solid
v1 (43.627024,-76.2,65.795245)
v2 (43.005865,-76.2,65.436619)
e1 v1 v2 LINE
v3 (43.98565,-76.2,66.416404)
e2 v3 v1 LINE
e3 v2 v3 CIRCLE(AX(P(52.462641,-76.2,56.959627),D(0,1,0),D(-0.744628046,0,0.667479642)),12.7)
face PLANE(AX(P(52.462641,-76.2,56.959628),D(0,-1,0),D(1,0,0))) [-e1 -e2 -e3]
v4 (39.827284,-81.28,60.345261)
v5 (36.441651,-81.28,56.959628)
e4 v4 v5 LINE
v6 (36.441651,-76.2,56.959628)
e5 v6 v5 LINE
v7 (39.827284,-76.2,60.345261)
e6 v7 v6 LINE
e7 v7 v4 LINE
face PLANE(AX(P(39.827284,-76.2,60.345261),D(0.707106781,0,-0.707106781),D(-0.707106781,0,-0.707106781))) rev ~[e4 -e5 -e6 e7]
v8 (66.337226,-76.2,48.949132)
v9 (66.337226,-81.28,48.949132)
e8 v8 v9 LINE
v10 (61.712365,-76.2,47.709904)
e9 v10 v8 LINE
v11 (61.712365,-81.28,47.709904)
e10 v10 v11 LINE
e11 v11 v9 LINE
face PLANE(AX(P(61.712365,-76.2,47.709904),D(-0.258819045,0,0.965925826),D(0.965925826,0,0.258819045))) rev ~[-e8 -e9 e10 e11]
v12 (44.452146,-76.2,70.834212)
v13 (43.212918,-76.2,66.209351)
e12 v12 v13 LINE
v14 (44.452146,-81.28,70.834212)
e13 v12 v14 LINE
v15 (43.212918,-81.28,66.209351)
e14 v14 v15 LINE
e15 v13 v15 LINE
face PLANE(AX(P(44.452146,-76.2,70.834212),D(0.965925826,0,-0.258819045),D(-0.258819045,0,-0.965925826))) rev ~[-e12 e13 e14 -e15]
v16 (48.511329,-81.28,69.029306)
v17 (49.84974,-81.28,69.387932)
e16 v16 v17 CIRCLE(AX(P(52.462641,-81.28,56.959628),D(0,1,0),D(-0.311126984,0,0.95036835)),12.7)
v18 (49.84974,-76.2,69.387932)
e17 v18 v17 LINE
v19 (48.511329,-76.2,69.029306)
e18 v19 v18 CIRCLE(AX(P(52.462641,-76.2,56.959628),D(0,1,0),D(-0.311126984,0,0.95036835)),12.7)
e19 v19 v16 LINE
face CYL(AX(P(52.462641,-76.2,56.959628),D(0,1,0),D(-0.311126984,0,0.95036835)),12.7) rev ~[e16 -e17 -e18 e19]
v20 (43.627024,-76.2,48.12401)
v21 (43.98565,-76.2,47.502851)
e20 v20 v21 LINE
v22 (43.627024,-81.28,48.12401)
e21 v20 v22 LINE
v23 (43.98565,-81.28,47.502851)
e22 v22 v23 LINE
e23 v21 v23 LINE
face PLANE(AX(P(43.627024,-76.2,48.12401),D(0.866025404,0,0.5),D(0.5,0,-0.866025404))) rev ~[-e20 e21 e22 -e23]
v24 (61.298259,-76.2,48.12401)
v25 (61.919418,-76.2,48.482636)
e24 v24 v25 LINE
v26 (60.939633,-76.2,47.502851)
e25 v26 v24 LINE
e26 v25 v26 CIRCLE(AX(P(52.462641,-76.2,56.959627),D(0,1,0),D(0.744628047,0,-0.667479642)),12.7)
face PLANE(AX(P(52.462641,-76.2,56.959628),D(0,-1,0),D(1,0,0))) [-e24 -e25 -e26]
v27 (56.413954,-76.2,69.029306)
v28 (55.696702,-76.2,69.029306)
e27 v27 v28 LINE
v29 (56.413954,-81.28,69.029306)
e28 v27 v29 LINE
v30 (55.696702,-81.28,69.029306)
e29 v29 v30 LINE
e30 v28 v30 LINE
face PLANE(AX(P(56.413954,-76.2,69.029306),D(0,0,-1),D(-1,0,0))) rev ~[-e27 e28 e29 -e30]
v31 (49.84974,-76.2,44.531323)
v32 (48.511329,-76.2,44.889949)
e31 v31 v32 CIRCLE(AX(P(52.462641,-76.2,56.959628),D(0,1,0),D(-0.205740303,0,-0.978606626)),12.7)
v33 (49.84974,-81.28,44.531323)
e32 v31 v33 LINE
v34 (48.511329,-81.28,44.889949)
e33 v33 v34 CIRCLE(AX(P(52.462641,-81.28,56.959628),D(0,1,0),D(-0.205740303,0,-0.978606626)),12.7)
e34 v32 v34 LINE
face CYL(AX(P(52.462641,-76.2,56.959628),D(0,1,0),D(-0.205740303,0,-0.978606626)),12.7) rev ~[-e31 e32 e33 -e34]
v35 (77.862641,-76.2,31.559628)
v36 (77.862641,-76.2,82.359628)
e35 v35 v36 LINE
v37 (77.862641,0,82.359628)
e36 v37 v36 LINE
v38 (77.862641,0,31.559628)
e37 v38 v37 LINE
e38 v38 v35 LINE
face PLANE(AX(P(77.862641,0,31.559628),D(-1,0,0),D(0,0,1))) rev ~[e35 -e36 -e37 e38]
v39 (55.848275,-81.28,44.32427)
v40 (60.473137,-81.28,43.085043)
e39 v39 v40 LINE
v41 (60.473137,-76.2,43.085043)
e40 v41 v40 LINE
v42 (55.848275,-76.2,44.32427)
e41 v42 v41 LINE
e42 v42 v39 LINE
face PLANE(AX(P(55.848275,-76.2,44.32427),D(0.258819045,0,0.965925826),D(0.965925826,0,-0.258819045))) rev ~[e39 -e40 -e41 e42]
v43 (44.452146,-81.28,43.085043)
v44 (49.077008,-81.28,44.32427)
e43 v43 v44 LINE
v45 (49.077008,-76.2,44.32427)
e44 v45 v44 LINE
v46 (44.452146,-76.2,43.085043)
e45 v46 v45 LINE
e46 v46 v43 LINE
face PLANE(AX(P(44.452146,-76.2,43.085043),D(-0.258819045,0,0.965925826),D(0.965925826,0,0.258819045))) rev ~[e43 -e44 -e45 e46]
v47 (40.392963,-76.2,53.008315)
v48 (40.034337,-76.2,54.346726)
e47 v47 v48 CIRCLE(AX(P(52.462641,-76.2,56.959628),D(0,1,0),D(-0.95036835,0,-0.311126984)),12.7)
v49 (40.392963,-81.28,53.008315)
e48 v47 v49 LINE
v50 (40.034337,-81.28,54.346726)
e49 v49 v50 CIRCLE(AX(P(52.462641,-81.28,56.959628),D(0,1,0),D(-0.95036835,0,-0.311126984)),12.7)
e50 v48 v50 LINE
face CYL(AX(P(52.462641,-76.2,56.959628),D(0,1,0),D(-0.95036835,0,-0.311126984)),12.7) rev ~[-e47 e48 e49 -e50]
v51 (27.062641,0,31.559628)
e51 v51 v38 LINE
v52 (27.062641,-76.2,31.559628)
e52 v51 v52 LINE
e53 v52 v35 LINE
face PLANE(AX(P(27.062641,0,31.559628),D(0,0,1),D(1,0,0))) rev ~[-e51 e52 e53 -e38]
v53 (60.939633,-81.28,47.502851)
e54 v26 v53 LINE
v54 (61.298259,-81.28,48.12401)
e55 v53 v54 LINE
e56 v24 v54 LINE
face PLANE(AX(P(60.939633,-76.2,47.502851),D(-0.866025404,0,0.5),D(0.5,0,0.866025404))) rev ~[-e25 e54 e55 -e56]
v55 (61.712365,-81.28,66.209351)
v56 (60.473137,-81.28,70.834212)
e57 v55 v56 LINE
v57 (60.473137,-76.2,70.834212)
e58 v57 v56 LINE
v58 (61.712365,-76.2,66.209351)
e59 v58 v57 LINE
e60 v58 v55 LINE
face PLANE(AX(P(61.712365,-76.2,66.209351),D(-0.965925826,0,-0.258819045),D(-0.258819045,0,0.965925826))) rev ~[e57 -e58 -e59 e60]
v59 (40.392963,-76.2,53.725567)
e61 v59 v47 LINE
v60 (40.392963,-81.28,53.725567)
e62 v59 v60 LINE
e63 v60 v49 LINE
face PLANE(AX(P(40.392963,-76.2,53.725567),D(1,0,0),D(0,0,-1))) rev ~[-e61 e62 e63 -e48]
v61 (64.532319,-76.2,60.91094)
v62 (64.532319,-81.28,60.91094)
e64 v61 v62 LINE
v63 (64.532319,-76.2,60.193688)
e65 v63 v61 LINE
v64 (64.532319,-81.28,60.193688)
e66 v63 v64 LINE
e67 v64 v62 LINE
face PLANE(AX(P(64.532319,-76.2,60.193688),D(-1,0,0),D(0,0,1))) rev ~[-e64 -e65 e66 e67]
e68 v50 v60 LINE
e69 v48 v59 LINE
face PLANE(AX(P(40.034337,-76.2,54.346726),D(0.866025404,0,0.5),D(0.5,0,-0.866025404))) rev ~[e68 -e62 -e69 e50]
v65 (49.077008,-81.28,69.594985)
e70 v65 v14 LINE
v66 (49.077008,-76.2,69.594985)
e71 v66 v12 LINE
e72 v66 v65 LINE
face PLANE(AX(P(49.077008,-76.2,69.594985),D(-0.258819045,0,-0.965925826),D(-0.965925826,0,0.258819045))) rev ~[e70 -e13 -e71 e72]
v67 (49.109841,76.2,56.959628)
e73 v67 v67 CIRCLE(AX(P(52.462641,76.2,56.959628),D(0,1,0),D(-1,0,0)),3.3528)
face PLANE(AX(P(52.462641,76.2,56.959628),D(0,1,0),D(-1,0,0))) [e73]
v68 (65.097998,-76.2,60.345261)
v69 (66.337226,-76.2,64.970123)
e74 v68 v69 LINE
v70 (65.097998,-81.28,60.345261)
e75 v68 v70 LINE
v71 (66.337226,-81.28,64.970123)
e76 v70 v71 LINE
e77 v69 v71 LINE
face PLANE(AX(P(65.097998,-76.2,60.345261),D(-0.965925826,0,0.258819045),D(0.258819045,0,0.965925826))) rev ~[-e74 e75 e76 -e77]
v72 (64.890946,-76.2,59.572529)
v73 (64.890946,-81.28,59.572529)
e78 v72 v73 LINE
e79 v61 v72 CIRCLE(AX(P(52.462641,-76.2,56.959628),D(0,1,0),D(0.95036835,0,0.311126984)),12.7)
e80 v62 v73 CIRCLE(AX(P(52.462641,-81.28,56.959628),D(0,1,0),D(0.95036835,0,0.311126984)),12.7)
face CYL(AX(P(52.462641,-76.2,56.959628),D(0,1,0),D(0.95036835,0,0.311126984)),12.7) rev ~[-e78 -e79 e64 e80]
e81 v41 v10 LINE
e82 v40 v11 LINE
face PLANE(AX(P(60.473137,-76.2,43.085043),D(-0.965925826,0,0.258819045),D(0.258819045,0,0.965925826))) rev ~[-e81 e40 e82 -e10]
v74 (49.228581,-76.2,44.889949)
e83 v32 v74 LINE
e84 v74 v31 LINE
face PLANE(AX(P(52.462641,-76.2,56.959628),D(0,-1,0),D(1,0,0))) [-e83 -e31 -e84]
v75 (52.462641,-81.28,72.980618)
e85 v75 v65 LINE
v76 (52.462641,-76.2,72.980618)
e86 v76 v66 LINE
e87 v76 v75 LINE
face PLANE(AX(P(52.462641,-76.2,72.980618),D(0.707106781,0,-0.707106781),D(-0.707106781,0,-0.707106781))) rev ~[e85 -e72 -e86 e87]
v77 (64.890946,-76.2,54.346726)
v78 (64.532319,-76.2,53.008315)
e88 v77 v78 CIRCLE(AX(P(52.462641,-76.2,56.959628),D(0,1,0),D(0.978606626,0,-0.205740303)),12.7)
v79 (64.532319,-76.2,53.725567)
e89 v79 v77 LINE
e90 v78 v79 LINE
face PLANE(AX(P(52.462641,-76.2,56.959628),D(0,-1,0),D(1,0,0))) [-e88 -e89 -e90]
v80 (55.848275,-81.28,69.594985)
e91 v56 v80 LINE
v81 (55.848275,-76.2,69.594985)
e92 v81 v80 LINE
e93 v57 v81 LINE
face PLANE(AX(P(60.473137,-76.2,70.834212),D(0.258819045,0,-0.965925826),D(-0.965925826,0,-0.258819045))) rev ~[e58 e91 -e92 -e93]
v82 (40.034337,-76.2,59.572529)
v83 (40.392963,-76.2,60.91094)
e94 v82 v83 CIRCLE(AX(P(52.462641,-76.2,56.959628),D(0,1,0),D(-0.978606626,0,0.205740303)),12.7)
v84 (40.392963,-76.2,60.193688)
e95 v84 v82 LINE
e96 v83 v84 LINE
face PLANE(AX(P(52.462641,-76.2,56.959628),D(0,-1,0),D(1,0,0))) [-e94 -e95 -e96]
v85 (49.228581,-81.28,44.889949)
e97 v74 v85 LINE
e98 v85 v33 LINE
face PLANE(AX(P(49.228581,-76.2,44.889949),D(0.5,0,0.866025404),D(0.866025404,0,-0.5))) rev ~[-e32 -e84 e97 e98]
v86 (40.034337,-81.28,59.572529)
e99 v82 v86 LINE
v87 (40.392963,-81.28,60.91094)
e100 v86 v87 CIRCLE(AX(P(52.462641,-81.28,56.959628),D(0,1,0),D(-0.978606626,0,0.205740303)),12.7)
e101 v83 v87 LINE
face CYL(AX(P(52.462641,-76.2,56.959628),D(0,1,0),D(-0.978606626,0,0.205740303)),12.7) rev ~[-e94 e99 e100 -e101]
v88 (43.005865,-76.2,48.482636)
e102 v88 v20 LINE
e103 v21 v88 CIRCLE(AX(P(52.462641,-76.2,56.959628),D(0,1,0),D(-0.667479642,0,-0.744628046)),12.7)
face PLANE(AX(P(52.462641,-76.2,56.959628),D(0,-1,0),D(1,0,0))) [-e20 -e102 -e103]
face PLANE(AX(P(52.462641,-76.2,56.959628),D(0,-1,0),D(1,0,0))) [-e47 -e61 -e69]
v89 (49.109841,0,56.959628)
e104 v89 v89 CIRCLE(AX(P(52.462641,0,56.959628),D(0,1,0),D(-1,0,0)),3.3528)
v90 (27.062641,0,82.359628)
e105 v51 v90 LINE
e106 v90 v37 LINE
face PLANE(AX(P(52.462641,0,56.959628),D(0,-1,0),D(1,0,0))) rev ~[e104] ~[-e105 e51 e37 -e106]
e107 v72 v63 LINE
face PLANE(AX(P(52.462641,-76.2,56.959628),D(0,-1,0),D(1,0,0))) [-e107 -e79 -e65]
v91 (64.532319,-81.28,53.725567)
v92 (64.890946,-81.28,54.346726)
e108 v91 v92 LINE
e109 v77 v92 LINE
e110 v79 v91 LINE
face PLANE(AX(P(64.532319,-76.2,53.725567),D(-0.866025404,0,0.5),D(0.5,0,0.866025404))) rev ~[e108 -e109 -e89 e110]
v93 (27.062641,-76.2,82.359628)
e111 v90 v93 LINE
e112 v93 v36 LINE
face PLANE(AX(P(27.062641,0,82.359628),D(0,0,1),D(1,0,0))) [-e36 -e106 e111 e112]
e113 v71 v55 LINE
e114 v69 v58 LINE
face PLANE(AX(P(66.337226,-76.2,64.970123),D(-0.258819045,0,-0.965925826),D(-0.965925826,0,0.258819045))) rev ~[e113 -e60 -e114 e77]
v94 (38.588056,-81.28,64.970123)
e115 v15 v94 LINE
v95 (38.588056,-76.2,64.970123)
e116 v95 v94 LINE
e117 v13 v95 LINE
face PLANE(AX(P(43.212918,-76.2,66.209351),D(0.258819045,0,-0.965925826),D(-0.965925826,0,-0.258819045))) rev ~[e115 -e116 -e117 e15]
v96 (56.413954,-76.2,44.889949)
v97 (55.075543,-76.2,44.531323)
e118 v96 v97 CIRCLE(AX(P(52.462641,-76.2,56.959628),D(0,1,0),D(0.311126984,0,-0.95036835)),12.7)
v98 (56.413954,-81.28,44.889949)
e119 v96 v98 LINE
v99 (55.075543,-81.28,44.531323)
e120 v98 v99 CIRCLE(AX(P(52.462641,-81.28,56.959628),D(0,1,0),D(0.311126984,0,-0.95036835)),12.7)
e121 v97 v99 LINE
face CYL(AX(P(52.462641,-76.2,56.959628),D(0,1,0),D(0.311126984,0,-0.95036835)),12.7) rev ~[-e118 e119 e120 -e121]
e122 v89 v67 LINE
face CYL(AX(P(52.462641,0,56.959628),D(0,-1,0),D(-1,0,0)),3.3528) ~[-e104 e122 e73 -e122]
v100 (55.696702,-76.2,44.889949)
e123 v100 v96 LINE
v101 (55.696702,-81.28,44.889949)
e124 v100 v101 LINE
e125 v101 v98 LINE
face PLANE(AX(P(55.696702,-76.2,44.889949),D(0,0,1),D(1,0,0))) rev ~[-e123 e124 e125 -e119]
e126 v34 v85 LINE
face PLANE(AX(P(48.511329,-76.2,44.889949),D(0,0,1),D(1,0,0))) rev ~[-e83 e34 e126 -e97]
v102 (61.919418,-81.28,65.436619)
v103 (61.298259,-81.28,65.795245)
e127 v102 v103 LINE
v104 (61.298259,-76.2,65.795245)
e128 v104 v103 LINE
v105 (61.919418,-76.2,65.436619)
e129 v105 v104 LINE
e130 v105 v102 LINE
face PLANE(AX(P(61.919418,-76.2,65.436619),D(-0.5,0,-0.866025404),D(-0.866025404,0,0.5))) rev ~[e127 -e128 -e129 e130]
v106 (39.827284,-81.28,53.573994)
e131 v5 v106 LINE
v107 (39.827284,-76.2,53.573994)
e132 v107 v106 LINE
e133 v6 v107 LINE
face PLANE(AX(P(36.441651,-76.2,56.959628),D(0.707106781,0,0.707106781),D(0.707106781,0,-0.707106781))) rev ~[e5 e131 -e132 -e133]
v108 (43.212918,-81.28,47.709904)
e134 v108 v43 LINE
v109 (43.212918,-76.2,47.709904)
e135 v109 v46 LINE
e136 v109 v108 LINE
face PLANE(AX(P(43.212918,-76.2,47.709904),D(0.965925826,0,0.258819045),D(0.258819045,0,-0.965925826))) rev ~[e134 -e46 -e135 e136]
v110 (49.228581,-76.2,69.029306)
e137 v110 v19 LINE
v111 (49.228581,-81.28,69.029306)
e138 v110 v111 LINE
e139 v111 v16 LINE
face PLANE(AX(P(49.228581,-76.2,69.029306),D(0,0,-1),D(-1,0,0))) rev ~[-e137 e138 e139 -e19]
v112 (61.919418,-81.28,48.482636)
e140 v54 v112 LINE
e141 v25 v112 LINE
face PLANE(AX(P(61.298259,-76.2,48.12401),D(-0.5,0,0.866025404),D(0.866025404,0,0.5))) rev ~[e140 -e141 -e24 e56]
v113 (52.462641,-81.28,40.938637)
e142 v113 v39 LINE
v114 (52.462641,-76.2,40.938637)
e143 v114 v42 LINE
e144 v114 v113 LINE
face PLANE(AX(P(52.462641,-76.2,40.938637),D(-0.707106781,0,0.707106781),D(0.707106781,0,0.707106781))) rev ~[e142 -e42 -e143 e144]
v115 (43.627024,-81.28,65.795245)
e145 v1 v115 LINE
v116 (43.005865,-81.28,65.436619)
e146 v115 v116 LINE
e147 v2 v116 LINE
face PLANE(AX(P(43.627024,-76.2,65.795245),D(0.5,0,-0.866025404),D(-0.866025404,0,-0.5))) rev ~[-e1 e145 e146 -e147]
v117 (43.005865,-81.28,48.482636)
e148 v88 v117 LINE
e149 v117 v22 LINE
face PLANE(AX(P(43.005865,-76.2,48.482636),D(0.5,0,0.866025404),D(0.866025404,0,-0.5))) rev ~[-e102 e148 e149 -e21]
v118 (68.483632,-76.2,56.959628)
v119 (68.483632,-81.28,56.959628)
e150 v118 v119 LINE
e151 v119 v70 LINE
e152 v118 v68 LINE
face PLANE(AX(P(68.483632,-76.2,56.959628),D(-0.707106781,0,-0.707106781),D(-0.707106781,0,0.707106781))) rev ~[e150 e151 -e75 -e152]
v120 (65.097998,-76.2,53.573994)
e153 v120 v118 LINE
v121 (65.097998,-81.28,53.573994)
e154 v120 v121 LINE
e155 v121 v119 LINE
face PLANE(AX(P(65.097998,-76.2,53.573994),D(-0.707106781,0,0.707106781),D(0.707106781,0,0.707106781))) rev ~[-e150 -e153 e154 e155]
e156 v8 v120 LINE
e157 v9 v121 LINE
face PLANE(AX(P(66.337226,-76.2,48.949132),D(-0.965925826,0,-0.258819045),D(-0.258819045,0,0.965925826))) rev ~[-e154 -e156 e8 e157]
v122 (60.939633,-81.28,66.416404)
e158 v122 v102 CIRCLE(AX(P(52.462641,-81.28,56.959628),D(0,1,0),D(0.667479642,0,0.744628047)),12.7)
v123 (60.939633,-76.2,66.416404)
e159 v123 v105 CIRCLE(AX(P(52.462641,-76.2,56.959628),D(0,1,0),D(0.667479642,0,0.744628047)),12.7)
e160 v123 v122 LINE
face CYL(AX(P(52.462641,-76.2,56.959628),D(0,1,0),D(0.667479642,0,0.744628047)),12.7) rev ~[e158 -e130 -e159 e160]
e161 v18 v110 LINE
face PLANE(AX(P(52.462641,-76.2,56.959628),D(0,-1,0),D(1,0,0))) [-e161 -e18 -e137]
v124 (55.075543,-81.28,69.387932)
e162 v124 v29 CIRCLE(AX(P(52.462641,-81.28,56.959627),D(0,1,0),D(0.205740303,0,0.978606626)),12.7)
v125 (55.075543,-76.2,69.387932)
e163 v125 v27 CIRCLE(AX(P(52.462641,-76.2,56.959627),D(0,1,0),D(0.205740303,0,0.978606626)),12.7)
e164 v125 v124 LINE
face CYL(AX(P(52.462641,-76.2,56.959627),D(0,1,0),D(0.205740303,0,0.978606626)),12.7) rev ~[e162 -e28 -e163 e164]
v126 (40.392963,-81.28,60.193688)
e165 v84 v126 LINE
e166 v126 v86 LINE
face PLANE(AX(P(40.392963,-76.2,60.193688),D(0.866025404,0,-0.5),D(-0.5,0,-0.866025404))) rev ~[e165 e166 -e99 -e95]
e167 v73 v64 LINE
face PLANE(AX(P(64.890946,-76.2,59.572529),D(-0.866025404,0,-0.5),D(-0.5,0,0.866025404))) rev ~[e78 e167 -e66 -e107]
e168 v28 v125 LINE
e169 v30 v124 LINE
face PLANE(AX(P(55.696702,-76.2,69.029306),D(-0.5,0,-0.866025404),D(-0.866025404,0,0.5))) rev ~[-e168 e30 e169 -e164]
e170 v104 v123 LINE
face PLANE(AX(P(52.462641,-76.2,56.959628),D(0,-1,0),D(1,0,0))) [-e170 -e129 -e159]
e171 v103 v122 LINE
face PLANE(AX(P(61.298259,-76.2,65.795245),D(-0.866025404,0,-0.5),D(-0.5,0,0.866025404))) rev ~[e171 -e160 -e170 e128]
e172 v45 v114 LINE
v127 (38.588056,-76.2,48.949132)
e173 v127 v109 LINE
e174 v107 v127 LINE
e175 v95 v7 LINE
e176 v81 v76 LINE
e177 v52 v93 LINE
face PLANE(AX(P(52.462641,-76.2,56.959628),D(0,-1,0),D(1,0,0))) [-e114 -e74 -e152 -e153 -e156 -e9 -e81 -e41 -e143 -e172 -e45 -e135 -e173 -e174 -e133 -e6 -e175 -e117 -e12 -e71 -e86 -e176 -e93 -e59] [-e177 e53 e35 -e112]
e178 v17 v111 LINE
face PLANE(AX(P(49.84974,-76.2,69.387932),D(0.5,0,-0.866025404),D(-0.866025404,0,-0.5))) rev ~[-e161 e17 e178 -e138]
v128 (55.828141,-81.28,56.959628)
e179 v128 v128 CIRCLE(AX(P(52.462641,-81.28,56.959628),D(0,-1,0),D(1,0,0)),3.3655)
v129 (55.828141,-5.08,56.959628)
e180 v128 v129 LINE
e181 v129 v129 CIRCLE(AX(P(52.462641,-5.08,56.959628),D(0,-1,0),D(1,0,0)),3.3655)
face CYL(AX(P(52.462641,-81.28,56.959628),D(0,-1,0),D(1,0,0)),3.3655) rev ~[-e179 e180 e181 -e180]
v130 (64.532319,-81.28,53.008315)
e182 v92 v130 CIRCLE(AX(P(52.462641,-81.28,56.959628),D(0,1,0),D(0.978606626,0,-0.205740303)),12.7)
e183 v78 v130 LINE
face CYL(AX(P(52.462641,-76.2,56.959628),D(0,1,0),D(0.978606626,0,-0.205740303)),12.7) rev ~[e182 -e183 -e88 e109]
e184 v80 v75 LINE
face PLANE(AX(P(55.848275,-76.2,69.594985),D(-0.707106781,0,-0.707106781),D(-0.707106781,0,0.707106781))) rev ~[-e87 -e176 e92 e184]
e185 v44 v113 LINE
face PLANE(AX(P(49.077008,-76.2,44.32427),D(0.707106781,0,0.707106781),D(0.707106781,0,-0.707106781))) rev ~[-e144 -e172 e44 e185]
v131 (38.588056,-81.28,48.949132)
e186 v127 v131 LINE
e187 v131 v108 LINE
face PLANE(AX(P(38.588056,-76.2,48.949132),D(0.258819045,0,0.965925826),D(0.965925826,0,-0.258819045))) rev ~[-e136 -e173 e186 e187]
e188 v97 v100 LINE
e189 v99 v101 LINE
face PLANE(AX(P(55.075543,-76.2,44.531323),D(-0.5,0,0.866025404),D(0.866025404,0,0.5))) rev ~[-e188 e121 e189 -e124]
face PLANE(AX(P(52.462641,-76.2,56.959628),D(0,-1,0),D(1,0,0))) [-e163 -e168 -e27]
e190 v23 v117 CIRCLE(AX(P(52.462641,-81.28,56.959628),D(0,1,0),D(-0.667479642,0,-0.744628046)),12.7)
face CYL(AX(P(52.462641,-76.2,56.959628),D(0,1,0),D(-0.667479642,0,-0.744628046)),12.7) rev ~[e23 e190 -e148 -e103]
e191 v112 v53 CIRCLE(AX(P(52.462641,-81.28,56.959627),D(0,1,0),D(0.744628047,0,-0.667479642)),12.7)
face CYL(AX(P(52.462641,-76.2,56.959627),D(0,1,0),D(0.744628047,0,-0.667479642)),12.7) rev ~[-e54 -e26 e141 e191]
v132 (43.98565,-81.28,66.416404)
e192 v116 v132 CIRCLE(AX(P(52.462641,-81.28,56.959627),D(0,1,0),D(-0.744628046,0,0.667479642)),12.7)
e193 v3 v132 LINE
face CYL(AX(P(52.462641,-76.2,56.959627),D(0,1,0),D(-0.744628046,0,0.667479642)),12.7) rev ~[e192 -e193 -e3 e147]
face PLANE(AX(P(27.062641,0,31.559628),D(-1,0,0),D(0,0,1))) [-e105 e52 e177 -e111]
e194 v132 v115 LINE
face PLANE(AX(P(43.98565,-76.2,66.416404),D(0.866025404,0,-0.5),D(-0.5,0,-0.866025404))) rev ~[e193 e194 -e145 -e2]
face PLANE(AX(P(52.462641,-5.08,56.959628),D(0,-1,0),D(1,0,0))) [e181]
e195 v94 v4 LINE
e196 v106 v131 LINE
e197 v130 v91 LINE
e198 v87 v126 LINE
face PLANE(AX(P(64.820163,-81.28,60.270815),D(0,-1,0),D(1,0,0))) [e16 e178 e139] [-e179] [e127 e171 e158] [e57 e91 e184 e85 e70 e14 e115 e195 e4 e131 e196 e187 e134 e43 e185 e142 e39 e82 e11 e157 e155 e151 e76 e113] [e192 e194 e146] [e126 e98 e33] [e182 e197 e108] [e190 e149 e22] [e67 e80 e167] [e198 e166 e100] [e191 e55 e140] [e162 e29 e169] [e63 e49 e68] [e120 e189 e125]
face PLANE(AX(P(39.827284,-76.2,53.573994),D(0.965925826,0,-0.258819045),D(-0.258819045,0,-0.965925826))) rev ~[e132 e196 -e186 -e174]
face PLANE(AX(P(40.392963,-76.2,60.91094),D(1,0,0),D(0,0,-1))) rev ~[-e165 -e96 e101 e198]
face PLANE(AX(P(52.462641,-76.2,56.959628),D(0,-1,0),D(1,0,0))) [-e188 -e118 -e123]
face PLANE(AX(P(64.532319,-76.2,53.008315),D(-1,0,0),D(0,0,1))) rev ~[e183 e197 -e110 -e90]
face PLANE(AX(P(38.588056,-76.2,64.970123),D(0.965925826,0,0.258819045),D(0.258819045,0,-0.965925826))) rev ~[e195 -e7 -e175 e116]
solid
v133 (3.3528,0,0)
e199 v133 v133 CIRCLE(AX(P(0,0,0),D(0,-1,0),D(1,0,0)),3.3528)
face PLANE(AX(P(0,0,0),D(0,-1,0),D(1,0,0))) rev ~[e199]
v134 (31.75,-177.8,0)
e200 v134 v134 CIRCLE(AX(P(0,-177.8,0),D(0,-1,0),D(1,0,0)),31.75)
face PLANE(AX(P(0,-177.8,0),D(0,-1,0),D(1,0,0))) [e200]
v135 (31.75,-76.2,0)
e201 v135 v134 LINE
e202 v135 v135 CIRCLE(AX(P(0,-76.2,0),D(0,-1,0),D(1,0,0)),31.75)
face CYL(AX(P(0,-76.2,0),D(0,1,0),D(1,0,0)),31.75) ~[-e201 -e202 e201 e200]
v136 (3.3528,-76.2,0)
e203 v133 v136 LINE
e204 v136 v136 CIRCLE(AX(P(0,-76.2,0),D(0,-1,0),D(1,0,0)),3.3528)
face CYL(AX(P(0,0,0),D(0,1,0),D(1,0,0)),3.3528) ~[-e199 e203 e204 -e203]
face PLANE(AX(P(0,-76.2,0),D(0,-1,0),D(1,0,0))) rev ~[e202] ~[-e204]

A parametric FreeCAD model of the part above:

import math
import FreeCAD as App
import Part
import Sketcher
Q = App.Units.Quantity

doc = App.newDocument("Part")
body = doc.addObject("PartDesign::Body", "Body")

# Sketch on XZ plane
sketch1 = doc.addObject("Sketcher::SketchObject", "Sketch")
body.addObject(sketch1)
sketch1.AttachmentSupport = (doc.XZ_Plane, [""])
sketch1.MapMode = "FlatFace"
sketch1.addGeometry(Part.Circle(App.Vector(0, 0, 0), App.Vector(0, 0, 1), 3.4), False)
sketch1.addConstraint([
    Sketcher.Constraint("Coincident", 0, 3, -1, 1),
    Sketcher.Constraint("Diameter", 0, Q("0.264 in")),
])
pad1 = doc.addObject("PartDesign::Pad", "Pad")
body.addObject(pad1)
pad1.Profile = sketch1
pad1.Length = Q("3 in")

# Sketch on XZ plane
sketch2 = doc.addObject("Sketcher::SketchObject", "Sketch001")
body.addObject(sketch2)
sketch2.AttachmentSupport = (doc.XZ_Plane, [""])
sketch2.MapMode = "FlatFace"
sketch2.AttachmentOffset = App.Placement(App.Vector(0, 0, 3 * 25.4), App.Rotation())
sketch2.addGeometry(Part.Circle(App.Vector(0, 0, 0), App.Vector(0, 0, 1), 32), False)
sketch2.addConstraint([
    Sketcher.Constraint("Coincident", 0, 3, -1, 1),
    Sketcher.Constraint("Diameter", 0, Q("2.5 in")),
])
pad2 = doc.addObject("PartDesign::Pad", "Pad001")
body.addObject(pad2)
pad2.Profile = sketch2
pad2.Length = Q("4 in")
body2 = doc.addObject("PartDesign::Body", "Body001")

# Sketch on XZ plane
sketch3 = doc.addObject("Sketcher::SketchObject", "Sketch002")
body2.addObject(sketch3)
sketch3.AttachmentSupport = (doc.getObject("XZ_Plane001"), [""])
sketch3.MapMode = "FlatFace"
sketch3.addGeometry([
    Part.LineSegment(App.Vector(27, 82, 0), App.Vector(27, 32, 0)),
    Part.LineSegment(App.Vector(27, 32, 0), App.Vector(78, 32, 0)),
    Part.LineSegment(App.Vector(78, 32, 0), App.Vector(78, 82, 0)),
    Part.LineSegment(App.Vector(78, 82, 0), App.Vector(27, 82, 0)),
], False)
sketch3.addConstraint([
    Sketcher.Constraint("Coincident", 0, 2, 1, 1),
    Sketcher.Constraint("Coincident", 1, 2, 2, 1),
    Sketcher.Constraint("Coincident", 2, 2, 3, 1),
    Sketcher.Constraint("Coincident", 3, 2, 0, 1),
    Sketcher.Constraint("Vertical", 0),
    Sketcher.Constraint("Horizontal", 1),
    Sketcher.Constraint("Vertical", 2),
    Sketcher.Constraint("Horizontal", 3),
    Sketcher.Constraint("Equal", 3, 0),
    Sketcher.Constraint("DistanceX", 1, 1, 1, 2, Q("2 in")),
    Sketcher.Constraint("DistanceX", -1, 1, 0, 2, Q("27.062641 mm")),
    Sketcher.Constraint("DistanceY", -1, 1, 0, 2, Q("31.559628 mm")),
])
pad3 = doc.addObject("PartDesign::Pad", "Pad002")
body2.addObject(pad3)
pad3.Profile = sketch3
pad3.Length = Q("3 in")

# Sketch on XZ plane
sketch4 = doc.addObject("Sketcher::SketchObject", "Sketch003")
body2.addObject(sketch4)
sketch4.AttachmentSupport = (doc.getObject("XZ_Plane001"), [""])
sketch4.MapMode = "FlatFace"
sketch4.addGeometry(Part.Circle(App.Vector(52.5, 57, 0), App.Vector(0, 0, 1), 3.4), False)
sketch4.addConstraint([
    Sketcher.Constraint("Diameter", 0, Q("0.264 in")),
    Sketcher.Constraint("DistanceX", -1, 1, 0, 3, Q("52.462641 mm")),
    Sketcher.Constraint("DistanceY", -1, 1, 0, 3, Q("56.959628 mm")),
])
pad4 = doc.addObject("PartDesign::Pad", "Pad003")
body2.addObject(pad4)
pad4.Profile = sketch4
pad4.Length = Q("3 in")
pad4.Reversed = True

# Sketch on XZ plane
sketch5 = doc.addObject("Sketcher::SketchObject", "Sketch004")
body2.addObject(sketch5)
sketch5.AttachmentSupport = (doc.getObject("XZ_Plane001"), [""])
sketch5.MapMode = "FlatFace"
sketch5.AttachmentOffset = App.Placement(App.Vector(0, 0, 3 * 25.4), App.Rotation())
sketch5.addGeometry([
    Part.LineSegment(App.Vector(43.2, 66.2, 0), App.Vector(38.6, 65, 0)),  # 0
    Part.LineSegment(App.Vector(38.6, 65, 0), App.Vector(39.8, 60.3, 0)),  # 1
    Part.LineSegment(App.Vector(39.8, 60.3, 0), App.Vector(36.4, 57, 0)),  # 2
    Part.LineSegment(App.Vector(36.4, 57, 0), App.Vector(39.8, 53.6, 0)),  # 3
    Part.LineSegment(App.Vector(39.8, 53.6, 0), App.Vector(38.6, 48.9, 0)),  # 4
    Part.LineSegment(App.Vector(38.6, 48.9, 0), App.Vector(43.2, 47.7, 0)),  # 5
    Part.LineSegment(App.Vector(43.2, 47.7, 0), App.Vector(44.5, 43.1, 0)),  # 6
    Part.LineSegment(App.Vector(44.5, 43.1, 0), App.Vector(49.1, 44.3, 0)),  # 7
    Part.LineSegment(App.Vector(49.1, 44.3, 0), App.Vector(52.5, 40.9, 0)),  # 8
    Part.LineSegment(App.Vector(52.5, 40.9, 0), App.Vector(55.8, 44.3, 0)),  # 9
    Part.LineSegment(App.Vector(55.8, 44.3, 0), App.Vector(60.5, 43.1, 0)),  # 10
    Part.LineSegment(App.Vector(60.5, 43.1, 0), App.Vector(61.7, 47.7, 0)),  # 11
    Part.LineSegment(App.Vector(61.7, 47.7, 0), App.Vector(66.3, 48.9, 0)),  # 12
    Part.LineSegment(App.Vector(66.3, 48.9, 0), App.Vector(65.1, 53.6, 0)),  # 13
    Part.LineSegment(App.Vector(65.1, 53.6, 0), App.Vector(68.5, 57, 0)),  # 14
    Part.LineSegment(App.Vector(68.5, 57, 0), App.Vector(65.1, 60.3, 0)),  # 15
    Part.LineSegment(App.Vector(65.1, 60.3, 0), App.Vector(66.3, 65, 0)),  # 16
    Part.LineSegment(App.Vector(66.3, 65, 0), App.Vector(61.7, 66.2, 0)),  # 17
    Part.LineSegment(App.Vector(61.7, 66.2, 0), App.Vector(60.5, 70.8, 0)),  # 18
    Part.LineSegment(App.Vector(60.5, 70.8, 0), App.Vector(55.8, 69.6, 0)),  # 19
    Part.LineSegment(App.Vector(55.8, 69.6, 0), App.Vector(52.5, 73, 0)),  # 20
    Part.LineSegment(App.Vector(52.5, 73, 0), App.Vector(49.1, 69.6, 0)),  # 21
    Part.LineSegment(App.Vector(49.1, 69.6, 0), App.Vector(44.5, 70.8, 0)),  # 22
    Part.LineSegment(App.Vector(44.5, 70.8, 0), App.Vector(43.2, 66.2, 0)),  # 23
    Part.ArcOfCircle(Part.Circle(App.Vector(52.5, 57, 0), App.Vector(0, 0, 1), 12.7), math.radians(11.87), math.radians(18.13)),  # 24
    Part.LineSegment(App.Vector(64.9, 59.6, 0), App.Vector(64.5, 60.2, 0)),  # 25
    Part.LineSegment(App.Vector(64.5, 60.2, 0), App.Vector(64.5, 60.9, 0)),  # 26
    Part.ArcOfCircle(Part.Circle(App.Vector(52.5, 57, 0), App.Vector(0, 0, 1), 12.7), math.radians(-18.13), math.radians(-11.87)),  # 27
    Part.LineSegment(App.Vector(64.5, 53, 0), App.Vector(64.5, 53.7, 0)),  # 28
    Part.LineSegment(App.Vector(64.5, 53.7, 0), App.Vector(64.9, 54.3, 0)),  # 29
    Part.ArcOfCircle(Part.Circle(App.Vector(52.5, 57, 0), App.Vector(0, 0, 1), 12.7), math.radians(-48.13), math.radians(-41.87)),  # 30
    Part.LineSegment(App.Vector(60.9, 47.5, 0), App.Vector(61.3, 48.1, 0)),  # 31
    Part.LineSegment(App.Vector(61.3, 48.1, 0), App.Vector(61.9, 48.5, 0)),  # 32
    Part.ArcOfCircle(Part.Circle(App.Vector(52.5, 57, 0), App.Vector(0, 0, 1), 12.7), math.radians(-78.13), math.radians(-71.87)),  # 33
    Part.LineSegment(App.Vector(55.1, 44.5, 0), App.Vector(55.7, 44.9, 0)),  # 34
    Part.LineSegment(App.Vector(55.7, 44.9, 0), App.Vector(56.4, 44.9, 0)),  # 35
    Part.ArcOfCircle(Part.Circle(App.Vector(52.5, 57, 0), App.Vector(0, 0, 1), 12.7), math.radians(-108.13), math.radians(-101.87)),  # 36
    Part.LineSegment(App.Vector(48.5, 44.9, 0), App.Vector(49.2, 44.9, 0)),  # 37
    Part.LineSegment(App.Vector(49.2, 44.9, 0), App.Vector(49.8, 44.5, 0)),  # 38
    Part.ArcOfCircle(Part.Circle(App.Vector(52.5, 57, 0), App.Vector(0, 0, 1), 12.7), math.radians(-138.13), math.radians(-131.87)),  # 39
    Part.LineSegment(App.Vector(43, 48.5, 0), App.Vector(43.6, 48.1, 0)),  # 40
    Part.LineSegment(App.Vector(43.6, 48.1, 0), App.Vector(44, 47.5, 0)),  # 41
    Part.ArcOfCircle(Part.Circle(App.Vector(52.5, 57, 0), App.Vector(0, 0, 1), 12.7), math.radians(-168.13), math.radians(-161.87)),  # 42
    Part.LineSegment(App.Vector(40, 54.3, 0), App.Vector(40.4, 53.7, 0)),  # 43
    Part.LineSegment(App.Vector(40.4, 53.7, 0), App.Vector(40.4, 53, 0)),  # 44
    Part.ArcOfCircle(Part.Circle(App.Vector(52.5, 57, 0), App.Vector(0, 0, 1), 12.7), math.radians(161.87), math.radians(168.13)),  # 45
    Part.LineSegment(App.Vector(40.4, 60.9, 0), App.Vector(40.4, 60.2, 0)),  # 46
    Part.LineSegment(App.Vector(40.4, 60.2, 0), App.Vector(40, 59.6, 0)),  # 47
    Part.ArcOfCircle(Part.Circle(App.Vector(52.5, 57, 0), App.Vector(0, 0, 1), 12.7), math.radians(131.87), math.radians(138.13)),  # 48
    Part.LineSegment(App.Vector(44, 66.4, 0), App.Vector(43.6, 65.8, 0)),  # 49
    Part.LineSegment(App.Vector(43.6, 65.8, 0), App.Vector(43, 65.4, 0)),  # 50
    Part.LineSegment(App.Vector(61.3, 65.8, 0), App.Vector(60.9, 66.4, 0)),  # 51
    Part.ArcOfCircle(Part.Circle(App.Vector(52.5, 57, 0), App.Vector(0, 0, 1), 12.7), math.radians(41.87), math.radians(48.13)),  # 52
    Part.LineSegment(App.Vector(61.9, 65.4, 0), App.Vector(61.3, 65.8, 0)),  # 53
    Part.LineSegment(App.Vector(55.7, 69, 0), App.Vector(55.1, 69.4, 0)),  # 54
    Part.ArcOfCircle(Part.Circle(App.Vector(52.5, 57, 0), App.Vector(0, 0, 1), 12.7), math.radians(71.87), math.radians(78.13)),  # 55
    Part.LineSegment(App.Vector(56.4, 69, 0), App.Vector(55.7, 69, 0)),  # 56
    Part.LineSegment(App.Vector(49.2, 69, 0), App.Vector(48.5, 69, 0)),  # 57
    Part.ArcOfCircle(Part.Circle(App.Vector(52.5, 57, 0), App.Vector(0, 0, 1), 12.7), math.radians(101.87), math.radians(108.13)),  # 58
    Part.LineSegment(App.Vector(49.8, 69.4, 0), App.Vector(49.2, 69, 0)),  # 59
], False)
sketch5.addConstraint([
    Sketcher.Constraint("Coincident", 0, 2, 1, 1),
    Sketcher.Constraint("Coincident", 1, 2, 2, 1),
    Sketcher.Constraint("Coincident", 2, 2, 3, 1),
    Sketcher.Constraint("Coincident", 3, 2, 4, 1),
    Sketcher.Constraint("Coincident", 4, 2, 5, 1),
    Sketcher.Constraint("Coincident", 5, 2, 6, 1),
    Sketcher.Constraint("Coincident", 6, 2, 7, 1),
    Sketcher.Constraint("Coincident", 7, 2, 8, 1),
    Sketcher.Constraint("Coincident", 8, 2, 9, 1),
    Sketcher.Constraint("Coincident", 9, 2, 10, 1),
    Sketcher.Constraint("Coincident", 10, 2, 11, 1),
    Sketcher.Constraint("Coincident", 11, 2, 12, 1),
    Sketcher.Constraint("Coincident", 12, 2, 13, 1),
    Sketcher.Constraint("Coincident", 13, 2, 14, 1),
    Sketcher.Constraint("Coincident", 14, 2, 15, 1),
    Sketcher.Constraint("Coincident", 15, 2, 16, 1),
    Sketcher.Constraint("Coincident", 16, 2, 17, 1),
    Sketcher.Constraint("Coincident", 17, 2, 18, 1),
    Sketcher.Constraint("Coincident", 18, 2, 19, 1),
    Sketcher.Constraint("Coincident", 19, 2, 20, 1),
    Sketcher.Constraint("Coincident", 20, 2, 21, 1),
    Sketcher.Constraint("Coincident", 21, 2, 22, 1),
    Sketcher.Constraint("Coincident", 22, 2, 23, 1),
    Sketcher.Constraint("Coincident", 23, 2, 0, 1),
    Sketcher.Constraint("Coincident", 24, 1, 25, 1),
    Sketcher.Constraint("Coincident", 25, 2, 26, 1),
    Sketcher.Constraint("Coincident", 26, 2, 24, 2),
    Sketcher.Constraint("Coincident", 27, 1, 28, 1),
    Sketcher.Constraint("Coincident", 28, 2, 29, 1),
    Sketcher.Constraint("Coincident", 29, 2, 27, 2),
    Sketcher.Constraint("Coincident", 30, 1, 31, 1),
    Sketcher.Constraint("Coincident", 31, 2, 32, 1),
    Sketcher.Constraint("Coincident", 32, 2, 30, 2),
    Sketcher.Constraint("Coincident", 33, 1, 34, 1),
    Sketcher.Constraint("Coincident", 34, 2, 35, 1),
    Sketcher.Constraint("Coincident", 35, 2, 33, 2),
    Sketcher.Constraint("Coincident", 36, 1, 37, 1),
    Sketcher.Constraint("Coincident", 37, 2, 38, 1),
    Sketcher.Constraint("Coincident", 38, 2, 36, 2),
    Sketcher.Constraint("Coincident", 39, 1, 40, 1),
    Sketcher.Constraint("Coincident", 40, 2, 41, 1),
    Sketcher.Constraint("Coincident", 41, 2, 39, 2),
    Sketcher.Constraint("Coincident", 42, 1, 43, 1),
    Sketcher.Constraint("Coincident", 43, 2, 44, 1),
    Sketcher.Constraint("Coincident", 44, 2, 42, 2),
    Sketcher.Constraint("Coincident", 45, 1, 46, 1),
    Sketcher.Constraint("Coincident", 46, 2, 47, 1),
    Sketcher.Constraint("Coincident", 47, 2, 45, 2),
    Sketcher.Constraint("Coincident", 48, 1, 49, 1),
    Sketcher.Constraint("Coincident", 49, 2, 50, 1),
    Sketcher.Constraint("Coincident", 50, 2, 48, 2),
    Sketcher.Constraint("Coincident", 51, 2, 52, 2),
    Sketcher.Constraint("Coincident", 52, 1, 53, 1),
    Sketcher.Constraint("Coincident", 53, 2, 51, 1),
    Sketcher.Constraint("Coincident", 54, 2, 55, 2),
    Sketcher.Constraint("Coincident", 55, 1, 56, 1),
    Sketcher.Constraint("Coincident", 56, 2, 54, 1),
    Sketcher.Constraint("Coincident", 57, 2, 58, 2),
    Sketcher.Constraint("Coincident", 58, 1, 59, 1),
    Sketcher.Constraint("Coincident", 59, 2, 57, 1),
    Sketcher.Constraint("Vertical", 26),
    Sketcher.Constraint("Vertical", 28),
    Sketcher.Constraint("Horizontal", 35),
    Sketcher.Constraint("Horizontal", 37),
    Sketcher.Constraint("Vertical", 44),
    Sketcher.Constraint("Vertical", 46),
    Sketcher.Constraint("Horizontal", 56),
    Sketcher.Constraint("Horizontal", 57),
    Sketcher.Constraint("Coincident", 27, 3, 24, 3),
    Sketcher.Constraint("Coincident", 30, 3, 24, 3),
    Sketcher.Constraint("Coincident", 33, 3, 24, 3),
    Sketcher.Constraint("Coincident", 36, 3, 24, 3),
    Sketcher.Constraint("Coincident", 39, 3, 24, 3),
    Sketcher.Constraint("Coincident", 42, 3, 24, 3),
    Sketcher.Constraint("Coincident", 45, 3, 24, 3),
    Sketcher.Constraint("Coincident", 48, 3, 24, 3),
    Sketcher.Constraint("Coincident", 52, 3, 24, 3),
    Sketcher.Constraint("Coincident", 55, 3, 24, 3),
    Sketcher.Constraint("Coincident", 58, 3, 24, 3),
    Sketcher.Constraint("Equal", 24, 27),
    Sketcher.Constraint("Equal", 27, 30),
    Sketcher.Constraint("Equal", 30, 33),
    Sketcher.Constraint("Equal", 33, 36),
    Sketcher.Constraint("Equal", 36, 39),
    Sketcher.Constraint("Equal", 39, 42),
    Sketcher.Constraint("Equal", 42, 45),
    Sketcher.Constraint("Equal", 45, 48),
    Sketcher.Constraint("Equal", 48, 52),
    Sketcher.Constraint("Equal", 52, 55),
    Sketcher.Constraint("Equal", 55, 58),
    Sketcher.Constraint("Perpendicular", 0, 1),
    Sketcher.Constraint("Perpendicular", 2, 3),
    Sketcher.Constraint("Perpendicular", 4, 5),
    Sketcher.Constraint("Parallel", 1, 6),
    Sketcher.Constraint("Perpendicular", 6, 7),
    Sketcher.Constraint("Parallel", 3, 8),
    Sketcher.Constraint("Perpendicular", 8, 9),
    Sketcher.Constraint("Parallel", 5, 10),
    Sketcher.Constraint("Perpendicular", 10, 11),
    Sketcher.Constraint("Parallel", 7, 12),
    Sketcher.Constraint("Perpendicular", 12, 13),
    Sketcher.Constraint("Parallel", 9, 14),
    Sketcher.Constraint("Perpendicular", 14, 15),
    Sketcher.Constraint("Parallel", 11, 16),
    Sketcher.Constraint("Perpendicular", 16, 17),
    Sketcher.Constraint("Parallel", 13, 18),
    Sketcher.Constraint("Perpendicular", 18, 19),
    Sketcher.Constraint("Parallel", 15, 20),
    Sketcher.Constraint("Perpendicular", 20, 21),
    Sketcher.Constraint("Parallel", 17, 22),
    Sketcher.Constraint("Perpendicular", 22, 23),
    Sketcher.Constraint("Parallel", 29, 31),
    Sketcher.Constraint("Perpendicular", 25, 32),
    Sketcher.Constraint("Parallel", 32, 34),
    Sketcher.Constraint("Perpendicular", 31, 38),
    Sketcher.Constraint("Parallel", 38, 40),
    Sketcher.Constraint("Perpendicular", 34, 41),
    Sketcher.Constraint("Parallel", 41, 43),
    Sketcher.Constraint("Perpendicular", 40, 47),
    Sketcher.Constraint("Parallel", 47, 49),
    Sketcher.Constraint("Perpendicular", 43, 50),
    Sketcher.Constraint("Perpendicular", 50, 51),
    Sketcher.Constraint("Perpendicular", 49, 53),
    Sketcher.Constraint("Parallel", 53, 54),
    Sketcher.Constraint("Perpendicular", 51, 59),
    Sketcher.Constraint("Horizontal", 58, 3, 2, 2),
    Sketcher.Constraint("Horizontal", 7, 2, 9, 2),
    Sketcher.Constraint("Horizontal", 6, 2, 10, 2),
    Sketcher.Constraint("Horizontal", 5, 2, 11, 2),
    Sketcher.Constraint("Horizontal", 4, 2, 12, 2),
    Sketcher.Constraint("Horizontal", 3, 2, 13, 2),
    Sketcher.Constraint("Horizontal", 2, 2, 14, 2),
    Sketcher.Constraint("Horizontal", 1, 2, 15, 2),
    Sketcher.Constraint("Horizontal", 0, 2, 16, 2),
    Sketcher.Constraint("Horizontal", 19, 2, 21, 2),
    Sketcher.Constraint("Horizontal", 18, 2, 22, 2),
    Sketcher.Constraint("Horizontal", 17, 2, 23, 2),
    Sketcher.Constraint("Horizontal", 35, 2, 36, 1),
    Sketcher.Constraint("Horizontal", 33, 1, 38, 2),
    Sketcher.Constraint("Horizontal", 32, 2, 39, 1),
    Sketcher.Constraint("Horizontal", 31, 2, 40, 2),
    Sketcher.Constraint("Horizontal", 30, 1, 41, 2),
    Sketcher.Constraint("Horizontal", 29, 2, 42, 1),
    Sketcher.Constraint("Horizontal", 28, 2, 43, 2),
    Sketcher.Constraint("Horizontal", 26, 2, 45, 1),
    Sketcher.Constraint("Horizontal", 25, 2, 46, 2),
    Sketcher.Constraint("Horizontal", 48, 1, 51, 2),
    Sketcher.Constraint("Horizontal", 50, 2, 52, 1),
    Sketcher.Constraint("Horizontal", 56, 2, 57, 2),
    Sketcher.Constraint("Horizontal", 54, 2, 58, 1),
    Sketcher.Constraint("Vertical", 1, 2, 3, 2),
    Sketcher.Constraint("Vertical", 0, 2, 4, 2),
    Sketcher.Constraint("Vertical", 58, 3, 8, 2),
    Sketcher.Constraint("Vertical", 13, 2, 15, 2),
    Sketcher.Constraint("Vertical", 12, 2, 16, 2),
    Sketcher.Constraint("Vertical", 11, 2, 17, 2),
    Sketcher.Constraint("Vertical", 10, 2, 18, 2),
    Sketcher.Constraint("Vertical", 9, 2, 19, 2),
    Sketcher.Constraint("Vertical", 26, 2, 27, 1),
    Sketcher.Constraint("Vertical", 24, 1, 29, 2),
    Sketcher.Constraint("Vertical", 41, 2, 48, 1),
    Sketcher.Constraint("Vertical", 40, 2, 49, 2),
    Sketcher.Constraint("Vertical", 33, 1, 54, 2),
    Sketcher.Constraint("Vertical", 35, 2, 55, 1),
    Sketcher.Constraint("Equal", 57, 26),
    Sketcher.Constraint("Equal", 0, 1),
    Sketcher.Constraint("Equal", 1, 2),
    Sketcher.Constraint("Equal", 5, 6),
    Sketcher.Constraint("Equal", 6, 7),
    Sketcher.Constraint("Equal", 7, 8),
    Sketcher.Constraint("Equal", 29, 31),
    Sketcher.Constraint("Equal", 31, 32),
    Sketcher.Constraint("Equal", 32, 34),
    Sketcher.Constraint("Radius", 24, Q("0.5 in")),
    Sketcher.Constraint("Angle", 0, Q("-165 deg")),
    Sketcher.Constraint("Angle", 25, Q("120 deg")),
    Sketcher.Constraint("DistanceX", -1, 1, 13, 2, Q("65.097998 mm")),
    Sketcher.Constraint("DistanceX", -1, 1, 34, 2, Q("55.696702 mm")),
    Sketcher.Constraint("Distance", 0, Q("4.788009 mm")),
    Sketcher.Constraint("DistanceX", 35, 1, 35, 2, Q("0.717252 mm")),
    Sketcher.Constraint("DistanceY", -1, 1, 1, 2, Q("60.345261 mm")),
])
pad5 = doc.addObject("PartDesign::Pad", "Pad004")
body2.addObject(pad5)
pad5.Profile = sketch5
pad5.Length = Q("0.2 in")

# Sketch on XZ plane
sketch6 = doc.addObject("Sketcher::SketchObject", "Sketch005")
body2.addObject(sketch6)
sketch6.AttachmentSupport = (doc.getObject("XZ_Plane001"), [""])
sketch6.MapMode = "FlatFace"
sketch6.AttachmentOffset = App.Placement(App.Vector(0, 0, 3.2 * 25.4), App.Rotation())
sketch6.addGeometry(Part.Circle(App.Vector(52.5, 57, 0), App.Vector(0, 0, 1), 3.4), False)
sketch6.addConstraint([
    Sketcher.Constraint("Diameter", 0, Q("0.265 in")),
    Sketcher.Constraint("DistanceX", -1, 1, 0, 3, Q("52.462641 mm")),
    Sketcher.Constraint("DistanceY", -1, 1, 0, 3, Q("56.959628 mm")),
])
pocket1 = doc.addObject("PartDesign::Pocket", "Pocket")
body2.addObject(pocket1)
pocket1.Profile = sketch6
pocket1.Length = Q("3 in")

doc.recompute()
